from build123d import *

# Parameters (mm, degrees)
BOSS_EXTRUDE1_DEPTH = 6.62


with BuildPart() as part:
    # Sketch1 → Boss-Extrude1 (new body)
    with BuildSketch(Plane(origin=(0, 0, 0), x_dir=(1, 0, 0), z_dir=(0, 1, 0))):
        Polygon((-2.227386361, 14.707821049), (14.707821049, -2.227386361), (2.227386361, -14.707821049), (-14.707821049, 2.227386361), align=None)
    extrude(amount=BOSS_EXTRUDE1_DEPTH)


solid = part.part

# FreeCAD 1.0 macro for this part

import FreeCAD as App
import Part
import Sketcher
from FreeCAD import Vector
Q = App.Units.Quantity


def add_polygon(sketch, points):
    """Adds a closed chain of lines whose ends are joined by coincident constraints."""
    first, n = sketch.GeometryCount, len(points)
    for a, b in zip(points, points[1:] + points[:1]):
        sketch.addGeometry(Part.LineSegment(App.Vector(*a, 0), App.Vector(*b, 0)), False)
    for i in range(n):
        sketch.addConstraint(Sketcher.Constraint("Coincident", first + i, 2, first + (i + 1) % n, 1))

doc = App.newDocument("Part")
params = doc.addObject("Spreadsheet::Sheet", "Params")
for row, (alias, value) in enumerate([
    ("sketch1_length", "23.95 mm"),
    ("sketch1_length2", "17.65 mm"),
    ("pad1_length", "6.62 mm"),
], start=1):
    params.set(f"A{row}", alias)
    params.set(f"B{row}", "=" + value)
    params.setAlias(f"B{row}", alias)

body = doc.addObject("PartDesign::Body", "Body")

sketch1 = body.newObject("Sketcher::SketchObject", "Sketch")
sketch1.AttachmentSupport = (doc.getObject("XZ_Plane"), [""])
sketch1.MapMode = "FlatFace"
add_polygon(sketch1, [(15, 2), (-2, -15), (-15, -2), (2, 15)])
sketch1.addConstraint([
    Sketcher.Constraint("Symmetric", 0, 2, 2, 2, -1, 1),
    Sketcher.Constraint("Symmetric", 1, 2, 3, 2, -1, 1),
    Sketcher.Constraint("Perpendicular", 0, 1),
    Sketcher.Constraint("Angle", 0, Q("-135 deg")),
    Sketcher.Constraint("Distance", 0, Q("23.95 mm")),
    Sketcher.Constraint("Distance", 1, Q("17.65 mm")),
])
sketch1.setExpression("Constraints[8]", "Params.sketch1_length")
sketch1.setExpression("Constraints[9]", "Params.sketch1_length2")
pad1 = body.newObject("PartDesign::Pad", "Pad")
pad1.Profile = sketch1
pad1.setExpression("Length", "Params.pad1_length")
pad1.Reversed = True

doc.recompute()
